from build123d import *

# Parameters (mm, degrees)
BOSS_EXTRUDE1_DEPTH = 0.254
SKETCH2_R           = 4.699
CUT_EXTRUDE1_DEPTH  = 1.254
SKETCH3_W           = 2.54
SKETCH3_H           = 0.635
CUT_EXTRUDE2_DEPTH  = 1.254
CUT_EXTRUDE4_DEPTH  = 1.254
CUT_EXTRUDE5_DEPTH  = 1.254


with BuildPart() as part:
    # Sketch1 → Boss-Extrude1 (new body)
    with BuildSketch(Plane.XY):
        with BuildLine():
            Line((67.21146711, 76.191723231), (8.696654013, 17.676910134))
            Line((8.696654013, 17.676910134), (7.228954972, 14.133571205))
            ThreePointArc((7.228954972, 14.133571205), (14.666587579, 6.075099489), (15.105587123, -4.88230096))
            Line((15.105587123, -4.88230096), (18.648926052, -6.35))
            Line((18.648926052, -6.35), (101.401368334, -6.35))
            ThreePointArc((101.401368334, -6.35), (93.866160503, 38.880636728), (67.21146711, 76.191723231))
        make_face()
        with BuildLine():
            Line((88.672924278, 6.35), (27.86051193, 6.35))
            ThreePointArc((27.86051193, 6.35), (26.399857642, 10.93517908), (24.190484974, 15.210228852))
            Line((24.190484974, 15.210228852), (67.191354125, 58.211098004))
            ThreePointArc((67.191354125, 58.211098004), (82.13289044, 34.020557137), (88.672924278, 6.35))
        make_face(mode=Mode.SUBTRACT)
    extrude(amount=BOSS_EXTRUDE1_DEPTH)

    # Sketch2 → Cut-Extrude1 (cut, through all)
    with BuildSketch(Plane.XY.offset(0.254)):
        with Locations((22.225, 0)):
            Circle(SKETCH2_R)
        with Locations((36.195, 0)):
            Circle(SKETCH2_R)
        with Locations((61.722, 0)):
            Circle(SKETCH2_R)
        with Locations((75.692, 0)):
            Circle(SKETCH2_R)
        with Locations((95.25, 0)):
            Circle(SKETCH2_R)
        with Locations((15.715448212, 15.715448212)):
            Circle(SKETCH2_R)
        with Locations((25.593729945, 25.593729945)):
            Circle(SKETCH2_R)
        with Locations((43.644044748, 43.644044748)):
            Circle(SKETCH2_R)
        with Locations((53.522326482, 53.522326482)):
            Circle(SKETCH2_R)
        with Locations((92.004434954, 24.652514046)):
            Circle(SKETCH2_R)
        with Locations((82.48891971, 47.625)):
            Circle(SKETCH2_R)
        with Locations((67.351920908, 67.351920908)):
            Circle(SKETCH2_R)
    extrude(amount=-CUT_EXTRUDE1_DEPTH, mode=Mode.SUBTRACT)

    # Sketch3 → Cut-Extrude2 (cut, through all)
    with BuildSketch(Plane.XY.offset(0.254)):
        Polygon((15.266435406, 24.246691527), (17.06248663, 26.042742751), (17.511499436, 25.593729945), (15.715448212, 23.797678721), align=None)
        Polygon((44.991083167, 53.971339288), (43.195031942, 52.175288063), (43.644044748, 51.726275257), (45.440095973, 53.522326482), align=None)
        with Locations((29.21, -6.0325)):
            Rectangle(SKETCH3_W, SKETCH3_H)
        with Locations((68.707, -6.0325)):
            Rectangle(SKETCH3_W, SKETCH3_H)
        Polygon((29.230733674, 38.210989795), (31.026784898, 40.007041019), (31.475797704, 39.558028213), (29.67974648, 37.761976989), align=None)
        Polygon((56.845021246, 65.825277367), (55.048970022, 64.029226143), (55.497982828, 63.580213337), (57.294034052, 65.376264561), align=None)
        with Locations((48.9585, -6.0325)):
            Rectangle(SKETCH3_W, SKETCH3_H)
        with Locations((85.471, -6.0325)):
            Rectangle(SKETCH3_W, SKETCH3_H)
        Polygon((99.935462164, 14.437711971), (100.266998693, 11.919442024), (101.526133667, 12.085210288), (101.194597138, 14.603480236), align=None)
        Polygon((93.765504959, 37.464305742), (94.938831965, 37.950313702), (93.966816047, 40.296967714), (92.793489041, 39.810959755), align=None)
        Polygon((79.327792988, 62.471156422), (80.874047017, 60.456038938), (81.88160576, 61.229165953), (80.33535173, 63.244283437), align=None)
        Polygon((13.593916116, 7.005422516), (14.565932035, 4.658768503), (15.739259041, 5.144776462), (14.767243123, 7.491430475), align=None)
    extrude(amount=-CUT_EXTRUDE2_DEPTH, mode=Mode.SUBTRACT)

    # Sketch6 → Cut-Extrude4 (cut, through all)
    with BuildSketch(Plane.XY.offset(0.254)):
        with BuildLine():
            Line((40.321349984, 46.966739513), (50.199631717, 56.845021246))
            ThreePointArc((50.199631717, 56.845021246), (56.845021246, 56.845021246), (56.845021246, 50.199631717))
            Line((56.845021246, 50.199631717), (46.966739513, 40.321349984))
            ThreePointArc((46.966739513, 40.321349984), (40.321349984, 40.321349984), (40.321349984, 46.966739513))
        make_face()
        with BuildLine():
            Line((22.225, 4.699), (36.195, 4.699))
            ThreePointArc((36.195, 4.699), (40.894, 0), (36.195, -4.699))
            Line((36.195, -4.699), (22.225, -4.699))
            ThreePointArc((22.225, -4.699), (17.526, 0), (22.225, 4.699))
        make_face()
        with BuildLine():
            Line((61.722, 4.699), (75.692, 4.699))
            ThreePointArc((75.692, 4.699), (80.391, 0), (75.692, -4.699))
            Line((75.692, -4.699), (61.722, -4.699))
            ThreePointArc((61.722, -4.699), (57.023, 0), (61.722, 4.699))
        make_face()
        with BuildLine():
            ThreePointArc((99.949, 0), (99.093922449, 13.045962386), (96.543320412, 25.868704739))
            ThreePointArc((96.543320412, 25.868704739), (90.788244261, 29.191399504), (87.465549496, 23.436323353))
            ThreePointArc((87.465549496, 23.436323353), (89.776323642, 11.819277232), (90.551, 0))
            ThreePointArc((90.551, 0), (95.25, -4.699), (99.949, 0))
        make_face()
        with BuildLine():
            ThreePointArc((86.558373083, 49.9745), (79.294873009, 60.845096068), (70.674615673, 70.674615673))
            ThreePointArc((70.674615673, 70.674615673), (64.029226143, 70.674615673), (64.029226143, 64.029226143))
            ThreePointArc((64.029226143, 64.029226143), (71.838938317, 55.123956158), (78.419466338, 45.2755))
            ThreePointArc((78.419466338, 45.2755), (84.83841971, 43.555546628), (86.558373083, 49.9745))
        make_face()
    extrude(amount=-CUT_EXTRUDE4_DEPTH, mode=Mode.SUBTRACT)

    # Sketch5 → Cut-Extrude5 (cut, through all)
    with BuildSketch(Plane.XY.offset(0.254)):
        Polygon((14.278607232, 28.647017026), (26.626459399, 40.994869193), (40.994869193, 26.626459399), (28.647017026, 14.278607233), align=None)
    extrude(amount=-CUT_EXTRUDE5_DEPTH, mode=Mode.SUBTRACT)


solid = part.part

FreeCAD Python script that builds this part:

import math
import FreeCAD as App
import Part
import Sketcher
from FreeCAD import Vector
Q = App.Units.Quantity


def add_polygon(sketch, points):
    """Adds a closed chain of lines whose ends are joined by coincident constraints."""
    first, n = sketch.GeometryCount, len(points)
    for a, b in zip(points, points[1:] + points[:1]):
        sketch.addGeometry(Part.LineSegment(App.Vector(*a, 0), App.Vector(*b, 0)), False)
    for i in range(n):
        sketch.addConstraint(Sketcher.Constraint("Coincident", first + i, 2, first + (i + 1) % n, 1))

doc = App.newDocument("Part")
body = doc.addObject("PartDesign::Body", "Body")

sketch1 = body.newObject("Sketcher::SketchObject", "Sketch")
sketch1.AttachmentSupport = (doc.getObject("XY_Plane"), [""])
sketch1.MapMode = "FlatFace"
sketch1.addGeometry([
    Part.LineSegment(Vector(67.2, 76.2, 0), Vector(8.7, 17.7, 0)),
    Part.LineSegment(Vector(8.7, 17.7, 0), Vector(7.2, 14.1, 0)),
    Part.ArcOfCircle(Part.Circle(Vector(0, 0, 0), Vector(0, 0, 1), 15.9), math.radians(-18), math.radians(63)),
    Part.LineSegment(Vector(15.1, -4.9, 0), Vector(18.6, -6.3, 0)),
    Part.LineSegment(Vector(18.6, -6.3, 0), Vector(101.4, -6.3, 0)),
    Part.ArcOfCircle(Part.Circle(Vector(0, 0, 0), Vector(0, 0, 1), 101.6), math.radians(-4), math.radians(49)),
    Part.ArcOfCircle(Part.Circle(Vector(0, 0, 0), Vector(0, 0, 1), 88.9), math.radians(4), math.radians(41)),
    Part.LineSegment(Vector(88.7, 6.3, 0), Vector(27.9, 6.3, 0)),
    Part.ArcOfCircle(Part.Circle(Vector(0, 0, 0), Vector(0, 0, 1), 28.6), math.radians(12.84), math.radians(32.16)),
    Part.LineSegment(Vector(24.2, 15.2, 0), Vector(67.2, 58.2, 0)),
], False)
sketch1.addConstraint([
    Sketcher.Constraint("Coincident", 0, 2, 1, 1),
    Sketcher.Constraint("Coincident", 1, 2, 2, 2),
    Sketcher.Constraint("Coincident", 2, 1, 3, 1),
    Sketcher.Constraint("Coincident", 3, 2, 4, 1),
    Sketcher.Constraint("Coincident", 4, 2, 5, 1),
    Sketcher.Constraint("Coincident", 5, 2, 0, 1),
    Sketcher.Constraint("Coincident", 6, 1, 7, 1),
    Sketcher.Constraint("Coincident", 7, 2, 8, 1),
    Sketcher.Constraint("Coincident", 8, 2, 9, 1),
    Sketcher.Constraint("Coincident", 9, 2, 6, 2),
    Sketcher.Constraint("Horizontal", 4),
    Sketcher.Constraint("Horizontal", 7),
    Sketcher.Constraint("Coincident", 2, 3, -1, 1),
    Sketcher.Constraint("Coincident", 5, 3, -1, 1),
    Sketcher.Constraint("Coincident", 6, 3, -1, 1),
    Sketcher.Constraint("Coincident", 8, 3, -1, 1),
    Sketcher.Constraint("Perpendicular", 1, 3),
    Sketcher.Constraint("Parallel", 0, 9),
    Sketcher.Constraint("Equal", 1, 3),
    Sketcher.Constraint("Radius", 5, Q("4 in")),
    Sketcher.Constraint("Radius", 6, Q("3.5 in")),
    Sketcher.Constraint("Angle", 0, Q("-135 deg")),
    Sketcher.Constraint("Radius", 2, Q("0.625 in")),
    Sketcher.Constraint("Radius", 8, Q("1.125 in")),
    Sketcher.Constraint("Angle", 1, Q("-112.5 deg")),
    Sketcher.Constraint("DistanceY", 4, 2, 6, 1, Q("0.5 in")),
    Sketcher.Constraint("DistanceY", 3, 2, -1, 1, Q("0.25 in")),
    Sketcher.Constraint("DistanceY", 2, 1, -1, 1, 4.882301),
    Sketcher.Constraint("DistanceY", -1, 1, 9, 2, 58.211098),
    Sketcher.Constraint("DistanceX", 5, 2, 4, 2, 34.189901),
])
pad1 = body.newObject("PartDesign::Pad", "Pad")
pad1.Profile = sketch1
pad1.Length = Q("0.01 in")

sketch2 = body.newObject("Sketcher::SketchObject", "Sketch001")
sketch2.AttachmentSupport = (doc.getObject("XY_Plane"), [""])
sketch2.MapMode = "FlatFace"
sketch2.AttachmentOffset = App.Placement(Vector(0, 0, 0.01 * 25.4), App.Rotation())
sketch2.addGeometry([
    Part.Circle(Vector(22.2, 0, 0), Vector(0, 0, 1), 4.7),
    Part.Circle(Vector(36.2, 0, 0), Vector(0, 0, 1), 4.7),
    Part.Circle(Vector(61.7, 0, 0), Vector(0, 0, 1), 4.7),
    Part.Circle(Vector(75.7, 0, 0), Vector(0, 0, 1), 4.7),
    Part.Circle(Vector(95.2, 0, 0), Vector(0, 0, 1), 4.7),
    Part.Circle(Vector(15.7, 15.7, 0), Vector(0, 0, 1), 4.7),
    Part.Circle(Vector(25.6, 25.6, 0), Vector(0, 0, 1), 4.7),
    Part.Circle(Vector(43.6, 43.6, 0), Vector(0, 0, 1), 4.7),
    Part.Circle(Vector(53.5, 53.5, 0), Vector(0, 0, 1), 4.7),
    Part.Circle(Vector(92, 24.7, 0), Vector(0, 0, 1), 4.7),
    Part.Circle(Vector(82.5, 47.6, 0), Vector(0, 0, 1), 4.7),
    Part.Circle(Vector(67.4, 67.4, 0), Vector(0, 0, 1), 4.7),
], False)
sketch2.addConstraint([
    Sketcher.Constraint("Equal", 0, 1),
    Sketcher.Constraint("Equal", 1, 2),
    Sketcher.Constraint("Equal", 2, 3),
    Sketcher.Constraint("Equal", 3, 4),
    Sketcher.Constraint("Equal", 4, 5),
    Sketcher.Constraint("Equal", 5, 6),
    Sketcher.Constraint("Equal", 6, 7),
    Sketcher.Constraint("Equal", 7, 8),
    Sketcher.Constraint("Equal", 8, 9),
    Sketcher.Constraint("Equal", 9, 10),
    Sketcher.Constraint("Equal", 10, 11),
    Sketcher.Constraint("PointOnObject", 0, 3, -1),
    Sketcher.Constraint("PointOnObject", 1, 3, -1),
    Sketcher.Constraint("PointOnObject", 2, 3, -1),
    Sketcher.Constraint("PointOnObject", 3, 3, -1),
    Sketcher.Constraint("PointOnObject", 4, 3, -1),
    Sketcher.Constraint("Diameter", 0, Q("0.37 in")),
    Sketcher.Constraint("DistanceX", -1, 1, 2, 3, Q("2.43 in")),
    Sketcher.Constraint("DistanceX", -1, 1, 3, 3, Q("2.98 in")),
    Sketcher.Constraint("DistanceX", -1, 1, 4, 3, Q("3.75 in")),
    Sketcher.Constraint("DistanceX", 0, 3, 1, 3, Q("0.55 in")),
    Sketcher.Constraint("DistanceX", -1, 1, 0, 3, Q("0.875 in")),
    Sketcher.Constraint("DistanceY", -1, 1, 10, 3, Q("1.875 in")),
    Sketcher.Constraint("DistanceX", 11, 3, 10, 3, 15.136999),
    Sketcher.Constraint("DistanceX", -1, 1, 5, 3, 15.715448),
    Sketcher.Constraint("DistanceY", -1, 1, 5, 3, 15.715448),
    Sketcher.Constraint("DistanceX", -1, 1, 6, 3, 25.59373),
    Sketcher.Constraint("DistanceY", -1, 1, 6, 3, 25.59373),
    Sketcher.Constraint("DistanceX", -1, 1, 10, 3, 82.48892),
    Sketcher.Constraint("DistanceY", -1, 1, 11, 3, 67.351921),
    Sketcher.Constraint("DistanceX", 7, 3, 8, 3, 9.878282),
    Sketcher.Constraint("DistanceY", 7, 3, 8, 3, 9.878282),
    Sketcher.Constraint("DistanceX", 5, 3, 8, 3, 37.806878),
    Sketcher.Constraint("DistanceY", 5, 3, 8, 3, 37.806878),
    Sketcher.Constraint("DistanceX", 8, 3, 9, 3, 38.482108),
    Sketcher.Constraint("DistanceY", 9, 3, 7, 3, 18.991531),
])
pocket1 = body.newObject("PartDesign::Pocket", "Pocket")
pocket1.Profile = sketch2
pocket1.Type = "ThroughAll"

sketch3 = body.newObject("Sketcher::SketchObject", "Sketch002")
sketch3.AttachmentSupport = (doc.getObject("XY_Plane"), [""])
sketch3.MapMode = "FlatFace"
sketch3.AttachmentOffset = App.Placement(Vector(0, 0, 0.01 * 25.4), App.Rotation())
add_polygon(sketch3, [(17.1, 26), (15.3, 24.2), (15.7, 23.8), (17.5, 25.6)])
add_polygon(sketch3, [(45, 54), (43.2, 52.2), (43.6, 51.7), (45.4, 53.5)])
add_polygon(sketch3, [(27.9, -5.7), (27.9, -6.3), (30.5, -6.3), (30.5, -5.7)])
add_polygon(sketch3, [(67.4, -5.7), (67.4, -6.3), (70, -6.3), (70, -5.7)])
add_polygon(sketch3, [(31, 40), (29.2, 38.2), (29.7, 37.8), (31.5, 39.6)])
add_polygon(sketch3, [(56.8, 65.8), (55, 64), (55.5, 63.6), (57.3, 65.4)])
add_polygon(sketch3, [(47.7, -5.7), (47.7, -6.3), (50.2, -6.3), (50.2, -5.7)])
add_polygon(sketch3, [(84.2, -5.7), (84.2, -6.3), (86.7, -6.3), (86.7, -5.7)])
add_polygon(sketch3, [(99.9, 14.4), (100.3, 11.9), (101.5, 12.1), (101.2, 14.6)])
add_polygon(sketch3, [(93.8, 37.5), (94.9, 38), (94, 40.3), (92.8, 39.8)])
add_polygon(sketch3, [(79.3, 62.5), (80.9, 60.5), (81.9, 61.2), (80.3, 63.2)])
add_polygon(sketch3, [(13.6, 7), (14.6, 4.7), (15.7, 5.1), (14.8, 7.5)])
sketch3.addConstraint([
    Sketcher.Constraint("Vertical", 8),
    Sketcher.Constraint("Horizontal", 9),
    Sketcher.Constraint("Vertical", 10),
    Sketcher.Constraint("Horizontal", 11),
    Sketcher.Constraint("Vertical", 12),
    Sketcher.Constraint("Horizontal", 13),
    Sketcher.Constraint("Vertical", 14),
    Sketcher.Constraint("Horizontal", 15),
    Sketcher.Constraint("Vertical", 24),
    Sketcher.Constraint("Horizontal", 25),
    Sketcher.Constraint("Vertical", 26),
    Sketcher.Constraint("Horizontal", 27),
    Sketcher.Constraint("Vertical", 28),
    Sketcher.Constraint("Horizontal", 29),
    Sketcher.Constraint("Vertical", 30),
    Sketcher.Constraint("Horizontal", 31),
    Sketcher.Constraint("Perpendicular", 0, 1),
    Sketcher.Constraint("Perpendicular", 1, 2),
    Sketcher.Constraint("Perpendicular", 2, 3),
    Sketcher.Constraint("Perpendicular", 3, 4),
    Sketcher.Constraint("Perpendicular", 4, 5),
    Sketcher.Constraint("Perpendicular", 5, 6),
    Sketcher.Constraint("Perpendicular", 6, 7),
    Sketcher.Constraint("Perpendicular", 7, 16),
    Sketcher.Constraint("Perpendicular", 16, 17),
    Sketcher.Constraint("Perpendicular", 17, 18),
    Sketcher.Constraint("Perpendicular", 18, 19),
    Sketcher.Constraint("Perpendicular", 19, 20),
    Sketcher.Constraint("Perpendicular", 20, 21),
    Sketcher.Constraint("Perpendicular", 21, 22),
    Sketcher.Constraint("Perpendicular", 22, 23),
    Sketcher.Constraint("Perpendicular", 32, 33),
    Sketcher.Constraint("Perpendicular", 33, 34),
    Sketcher.Constraint("Perpendicular", 34, 35),
    Sketcher.Constraint("Perpendicular", 36, 37),
    Sketcher.Constraint("Perpendicular", 37, 38),
    Sketcher.Constraint("Perpendicular", 38, 39),
    Sketcher.Constraint("Perpendicular", 40, 41),
    Sketcher.Constraint("Perpendicular", 41, 42),
    Sketcher.Constraint("Perpendicular", 42, 43),
    Sketcher.Constraint("Parallel", 39, 44),
    Sketcher.Constraint("Perpendicular", 44, 45),
    Sketcher.Constraint("Perpendicular", 45, 46),
    Sketcher.Constraint("Perpendicular", 46, 47),
    Sketcher.Constraint("Horizontal", 9, 2, 12, 2),
    Sketcher.Constraint("Horizontal", 11, 2, 14, 2),
    Sketcher.Constraint("Horizontal", 13, 2, 24, 2),
    Sketcher.Constraint("Horizontal", 15, 2, 26, 2),
    Sketcher.Constraint("Horizontal", 25, 2, 28, 2),
    Sketcher.Constraint("Horizontal", 27, 2, 30, 2),
    Sketcher.Constraint("Equal", 11, 13),
    Sketcher.Constraint("Equal", 15, 25),
    Sketcher.Constraint("Equal", 27, 29),
    Sketcher.Constraint("Equal", 2, 4),
    Sketcher.Constraint("Equal", 3, 5),
    Sketcher.Constraint("Equal", 6, 16),
    Sketcher.Constraint("Equal", 7, 17),
    Sketcher.Constraint("Equal", 18, 20),
    Sketcher.Constraint("Equal", 19, 21),
    Sketcher.Constraint("Equal", 22, 32),
    Sketcher.Constraint("Equal", 35, 36),
    Sketcher.Constraint("Equal", 34, 37),
    Sketcher.Constraint("Equal", 39, 40),
    Sketcher.Constraint("Equal", 38, 41),
    Sketcher.Constraint("Equal", 42, 44),
    Sketcher.Constraint("Equal", 43, 45),
    Sketcher.Constraint("DistanceX", 9, 1, 9, 2, Q("0.1 in")),
    Sketcher.Constraint("Angle", 0, Q("-135 deg")),
    Sketcher.Constraint("Distance", 0, Q("0.1 in")),
    Sketcher.Constraint("DistanceX", -1, 1, 8, 2, Q("1.1 in")),
    Sketcher.Constraint("Angle", 32, Q("-82.5 deg")),
    Sketcher.Constraint("Angle", 36, Q("22.5 deg")),
    Sketcher.Constraint("Angle", 40, Q("-52.5 deg")),
    Sketcher.Constraint("Distance", 33, Q("0.05 in")),
    Sketcher.Constraint("DistanceY", 8, 2, 8, 1, Q("0.025 in")),
    Sketcher.Constraint("DistanceY", 8, 2, -1, 1, Q("0.25 in")),
    Sketcher.Constraint("DistanceX", 13, 2, 28, 2, Q("0.56 in")),
    Sketcher.Constraint("Distance", 1, Q("0.025 in")),
    Sketcher.Constraint("DistanceX", -1, 1, 12, 2, Q("2.655 in")),
    Sketcher.Constraint("DistanceX", -1, 1, 24, 2, Q("1.8775 in")),
    Sketcher.Constraint("DistanceX", -1, 1, 2, 2, 17.511499),
    Sketcher.Constraint("DistanceX", -1, 1, 32, 2, 100.266999),
    Sketcher.Constraint("DistanceX", 16, 2, 4, 2, 13.964298),
    Sketcher.Constraint("DistanceY", 16, 2, 4, 2, 13.964298),
    Sketcher.Constraint("DistanceX", 0, 2, 16, 2, 13.964298),
    Sketcher.Constraint("DistanceY", 0, 2, 16, 2, 13.964298),
    Sketcher.Constraint("DistanceY", 6, 2, 20, 2, 10.5069),
    Sketcher.Constraint("DistanceX", 7, 2, 21, 2, 10.5069),
    Sketcher.Constraint("DistanceY", 35, 2, 36, 2, 23.512602),
    Sketcher.Constraint("DistanceX", 36, 2, 33, 2, 6.587302),
    Sketcher.Constraint("DistanceY", 37, 2, 41, 2, 20.932198),
    Sketcher.Constraint("DistanceY", 41, 2, 22, 2, 4.147099),
    Sketcher.Constraint("DistanceY", 46, 2, 2, 2, 18.102299),
    Sketcher.Constraint("DistanceY", -1, 1, 0, 2, 24.246692),
    Sketcher.Constraint("DistanceX", -1, 1, 42, 2, 80.335352),
    Sketcher.Constraint("DistanceX", -1, 1, 45, 2, 15.739259),
])
pocket2 = body.newObject("PartDesign::Pocket", "Pocket001")
pocket2.Profile = sketch3
pocket2.Type = "ThroughAll"

sketch4 = body.newObject("Sketcher::SketchObject", "Sketch003")
sketch4.AttachmentSupport = (doc.getObject("XY_Plane"), [""])
sketch4.MapMode = "FlatFace"
sketch4.AttachmentOffset = App.Placement(Vector(0, 0, 0.01 * 25.4), App.Rotation())
sketch4.addGeometry([
    Part.LineSegment(Vector(50.2, 56.8, 0), Vector(40.3, 47, 0)),
    Part.ArcOfCircle(Part.Circle(Vector(43.6, 43.6, 0), Vector(0, 0, 1), 4.7), math.radians(135), math.radians(315)),
    Part.LineSegment(Vector(47, 40.3, 0), Vector(56.8, 50.2, 0)),
    Part.ArcOfCircle(Part.Circle(Vector(53.5, 53.5, 0), Vector(0, 0, 1), 4.7), math.radians(-45), math.radians(135)),
    Part.LineSegment(Vector(36.2, 4.7, 0), Vector(22.2, 4.7, 0)),
    Part.ArcOfCircle(Part.Circle(Vector(22.2, 0, 0), Vector(0, 0, 1), 4.7), math.radians(90), math.radians(270)),
    Part.LineSegment(Vector(22.2, -4.7, 0), Vector(36.2, -4.7, 0)),
    Part.ArcOfCircle(Part.Circle(Vector(36.2, 0, 0), Vector(0, 0, 1), 4.7), math.radians(-90), math.radians(90)),
    Part.LineSegment(Vector(75.7, 4.7, 0), Vector(61.7, 4.7, 0)),
    Part.ArcOfCircle(Part.Circle(Vector(61.7, 0, 0), Vector(0, 0, 1), 4.7), math.radians(90), math.radians(270)),
    Part.LineSegment(Vector(61.7, -4.7, 0), Vector(75.7, -4.7, 0)),
    Part.ArcOfCircle(Part.Circle(Vector(75.7, 0, 0), Vector(0, 0, 1), 4.7), math.radians(-90), math.radians(90)),
    Part.ArcOfCircle(Part.Circle(Vector(0, 0, 0), Vector(0, 0, 1), 99.9), math.radians(0), math.radians(15)),
    Part.ArcOfCircle(Part.Circle(Vector(92, 24.7, 0), Vector(0, 0, 1), 4.7), math.radians(15), math.radians(195)),
    Part.ArcOfCircle(Part.Circle(Vector(0, 0, 0), Vector(0, 0, 1), 90.6), math.radians(0), math.radians(15)),
    Part.ArcOfCircle(Part.Circle(Vector(95.2, 0, 0), Vector(0, 0, 1), 4.7), math.radians(180), math.radians(360)),
    Part.ArcOfCircle(Part.Circle(Vector(0, 0, 0), Vector(0, 0, 1), 99.9), math.radians(30), math.radians(45)),
    Part.ArcOfCircle(Part.Circle(Vector(67.4, 67.4, 0), Vector(0, 0, 1), 4.7), math.radians(45), math.radians(225)),
    Part.ArcOfCircle(Part.Circle(Vector(0, 0, 0), Vector(0, 0, 1), 90.6), math.radians(30), math.radians(45)),
    Part.ArcOfCircle(Part.Circle(Vector(82.5, 47.6, 0), Vector(0, 0, 1), 4.7), math.radians(-150), math.radians(30)),
], False)
sketch4.addConstraint([
    Sketcher.Constraint("Tangent", 0, 2, 1, 1),
    Sketcher.Constraint("Tangent", 1, 2, 2, 1),
    Sketcher.Constraint("Tangent", 2, 2, 3, 1),
    Sketcher.Constraint("Tangent", 3, 2, 0, 1),
    Sketcher.Constraint("Tangent", 4, 2, 5, 1),
    Sketcher.Constraint("Tangent", 5, 2, 6, 1),
    Sketcher.Constraint("Tangent", 6, 2, 7, 1),
    Sketcher.Constraint("Tangent", 7, 2, 4, 1),
    Sketcher.Constraint("Tangent", 8, 2, 9, 1),
    Sketcher.Constraint("Tangent", 9, 2, 10, 1),
    Sketcher.Constraint("Tangent", 10, 2, 11, 1),
    Sketcher.Constraint("Tangent", 11, 2, 8, 1),
    Sketcher.Constraint("Tangent", 12, 2, 13, 1),
    Sketcher.Constraint("Tangent", 13, 2, 14, 2),
    Sketcher.Constraint("Tangent", 14, 1, 15, 1),
    Sketcher.Constraint("Tangent", 15, 2, 12, 1),
    Sketcher.Constraint("Tangent", 16, 2, 17, 1),
    Sketcher.Constraint("Tangent", 17, 2, 18, 2),
    Sketcher.Constraint("Tangent", 18, 1, 19, 1),
    Sketcher.Constraint("Tangent", 19, 2, 16, 1),
    Sketcher.Constraint("Horizontal", 4),
    Sketcher.Constraint("Horizontal", 6),
    Sketcher.Constraint("Horizontal", 8),
    Sketcher.Constraint("Horizontal", 10),
    Sketcher.Constraint("Coincident", 12, 3, -1, 1),
    Sketcher.Constraint("Coincident", 14, 3, -1, 1),
    Sketcher.Constraint("Coincident", 16, 3, -1, 1),
    Sketcher.Constraint("Coincident", 18, 3, -1, 1),
    Sketcher.Constraint("Equal", 1, 3),
    Sketcher.Constraint("Equal", 3, 5),
    Sketcher.Constraint("Equal", 7, 9),
    Sketcher.Constraint("Equal", 11, 13),
    Sketcher.Constraint("Equal", 12, 16),
    Sketcher.Constraint("Equal", 15, 17),
    Sketcher.Constraint("PointOnObject", 5, 3, -1),
    Sketcher.Constraint("PointOnObject", 9, 3, -1),
    Sketcher.Constraint("PointOnObject", 15, 3, -1),
    Sketcher.Constraint("Equal", 6, 8),
    Sketcher.Constraint("Angle", 0, Q("-135 deg")),
    Sketcher.Constraint("Radius", 1, Q("0.185 in")),
    Sketcher.Constraint("Radius", 12, Q("3.935 in")),
    Sketcher.Constraint("DistanceX", 4, 2, 4, 1, Q("0.55 in")),
    Sketcher.Constraint("Distance", 0, Q("0.55 in")),
    Sketcher.Constraint("DistanceX", -1, 1, 9, 3, Q("2.43 in")),
    Sketcher.Constraint("DistanceX", -1, 1, 5, 3, Q("0.875 in")),
    Sketcher.Constraint("DistanceY", -1, 1, 19, 3, Q("1.875 in")),
    Sketcher.Constraint("DistanceX", 17, 3, 19, 3, 15.136999),
    Sketcher.Constraint("DistanceX", 2, 2, 17, 3, 10.5069),
    Sketcher.Constraint("DistanceX", 19, 3, 12, 2, 14.054401),
    Sketcher.Constraint("DistanceY", 3, 3, 17, 2, 10.5069),
])
pocket3 = body.newObject("PartDesign::Pocket", "Pocket002")
pocket3.Profile = sketch4
pocket3.Type = "ThroughAll"

sketch5 = body.newObject("Sketcher::SketchObject", "Sketch004")
sketch5.AttachmentSupport = (doc.getObject("XY_Plane"), [""])
sketch5.MapMode = "FlatFace"
sketch5.AttachmentOffset = App.Placement(Vector(0, 0, 0.01 * 25.4), App.Rotation())
add_polygon(sketch5, [(27, 41), (14, 29), (29, 14), (41, 27)])
sketch5.addConstraint([
    Sketcher.Constraint("Perpendicular", 0, 1),
    Sketcher.Constraint("Perpendicular", 1, 2),
    Sketcher.Constraint("Perpendicular", 2, 3),
    Sketcher.Constraint("Angle", 0, Q("-135 deg")),
    Sketcher.Constraint("Distance", 1, Q("0.8 in")),
    Sketcher.Constraint("Distance", 0, Q("0.6875 in")),
    Sketcher.Constraint("DistanceX", -1, 1, 2, 2, 40.994869),
    Sketcher.Constraint("DistanceY", -1, 1, 2, 2, 26.626459),
])
pocket4 = body.newObject("PartDesign::Pocket", "Pocket003")
pocket4.Profile = sketch5
pocket4.Type = "ThroughAll"

doc.recompute()
